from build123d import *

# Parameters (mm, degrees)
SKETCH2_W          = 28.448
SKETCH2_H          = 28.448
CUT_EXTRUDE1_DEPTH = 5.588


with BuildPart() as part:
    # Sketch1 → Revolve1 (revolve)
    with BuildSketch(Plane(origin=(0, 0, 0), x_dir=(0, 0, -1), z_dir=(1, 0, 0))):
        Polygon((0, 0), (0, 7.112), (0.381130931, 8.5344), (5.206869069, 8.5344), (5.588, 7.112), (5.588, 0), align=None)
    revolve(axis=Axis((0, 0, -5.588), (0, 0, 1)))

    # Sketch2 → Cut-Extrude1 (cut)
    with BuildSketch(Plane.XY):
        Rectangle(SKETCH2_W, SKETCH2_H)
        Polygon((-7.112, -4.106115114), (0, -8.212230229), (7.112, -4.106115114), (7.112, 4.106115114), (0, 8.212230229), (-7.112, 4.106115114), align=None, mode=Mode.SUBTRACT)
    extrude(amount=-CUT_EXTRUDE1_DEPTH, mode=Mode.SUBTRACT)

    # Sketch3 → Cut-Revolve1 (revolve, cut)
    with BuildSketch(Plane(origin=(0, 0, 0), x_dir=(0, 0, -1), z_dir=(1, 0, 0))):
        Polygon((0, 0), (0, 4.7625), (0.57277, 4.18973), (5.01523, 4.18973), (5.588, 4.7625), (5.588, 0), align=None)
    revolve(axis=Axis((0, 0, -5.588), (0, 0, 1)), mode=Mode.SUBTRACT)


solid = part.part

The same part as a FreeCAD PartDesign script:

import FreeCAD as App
import Part
import Sketcher
Q = App.Units.Quantity


def add_polygon(sketch, points):
    """Adds a closed chain of lines whose ends are joined by coincident constraints."""
    first, n = sketch.GeometryCount, len(points)
    for a, b in zip(points, points[1:] + points[:1]):
        sketch.addGeometry(Part.LineSegment(App.Vector(*a, 0), App.Vector(*b, 0)), False)
    for i in range(n):
        sketch.addConstraint(Sketcher.Constraint("Coincident", first + i, 2, first + (i + 1) % n, 1))

doc = App.newDocument("Part")
body = doc.addObject("PartDesign::Body", "Body")

sketch1 = body.newObject("Sketcher::SketchObject", "Sketch")
sketch1.AttachmentSupport = (doc.getObject("YZ_Plane"), [""])
sketch1.MapMode = "FlatFace"
add_polygon(sketch1, [(7.112, 0), (0, 0), (0, -5.588), (7.112, -5.588), (8.5344, -5.206869), (8.5344, -0.381131)])
sketch1.addConstraint(Sketcher.Constraint("Horizontal", 0))
sketch1.addConstraint(Sketcher.Constraint("Vertical", 1))
sketch1.addConstraint(Sketcher.Constraint("Horizontal", 2))
sketch1.addConstraint(Sketcher.Constraint("Vertical", 4))
sketch1.addConstraint(Sketcher.Constraint("Coincident", 0, 2, -1, 1))
sketch1.addConstraint(Sketcher.Constraint("Vertical", 2, 2, 5, 2))
sketch1.addConstraint(Sketcher.Constraint("Equal", 3, 5))
sketch1.addConstraint(Sketcher.Constraint("Angle", 3, Q("15 deg")))
sketch1.addConstraint(Sketcher.Constraint("DistanceX", 0, 2, 0, 1, Q("0.28 in")))
sketch1.addConstraint(Sketcher.Constraint("DistanceY", 1, 2, 1, 1, Q("0.22 in")))
sketch1.addConstraint(Sketcher.Constraint("DistanceX", -1, 1, 3, 2, Q("0.336 in")))
revolution = body.newObject("PartDesign::Revolution", "Revolution")
revolution.Profile = sketch1
revolution.ReferenceAxis = (sketch1, ["V_Axis"])
revolution.Angle = 360

sketch2 = body.newObject("Sketcher::SketchObject", "Sketch001")
sketch2.AttachmentSupport = (doc.getObject("XY_Plane"), [""])
sketch2.MapMode = "FlatFace"
add_polygon(sketch2, [(-14.224, 14.224), (-14.224, -14.224), (14.224, -14.224), (14.224, 14.224)])
add_polygon(sketch2, [(0, -8.21223), (-7.112, -4.106115), (-7.112, 4.106115), (0, 8.21223), (7.112, 4.106115), (7.112, -4.106115)])
sketch2.addConstraint(Sketcher.Constraint("Vertical", 0))
sketch2.addConstraint(Sketcher.Constraint("Horizontal", 1))
sketch2.addConstraint(Sketcher.Constraint("Vertical", 2))
sketch2.addConstraint(Sketcher.Constraint("Horizontal", 3))
sketch2.addConstraint(Sketcher.Constraint("Vertical", 5))
sketch2.addConstraint(Sketcher.Constraint("Vertical", 8))
sketch2.addConstraint(Sketcher.Constraint("Symmetric", 0, 2, 2, 2, -1, 1))
sketch2.addConstraint(Sketcher.Constraint("Symmetric", 4, 2, 7, 2, -1, 1))
sketch2.addConstraint(Sketcher.Constraint("Symmetric", 6, 2, 9, 2, -1, 1))
sketch2.addConstraint(Sketcher.Constraint("PointOnObject", 6, 2, -2))
sketch2.addConstraint(Sketcher.Constraint("Parallel", 6, 9))
sketch2.addConstraint(Sketcher.Constraint("Horizontal", 5, 2, 7, 2))
sketch2.addConstraint(Sketcher.Constraint("Equal", 3, 0))
sketch2.addConstraint(Sketcher.Constraint("Angle", 4, Q("150 deg")))
sketch2.addConstraint(Sketcher.Constraint("DistanceX", 1, 1, 1, 2, Q("1.12 in")))
sketch2.addConstraint(Sketcher.Constraint("DistanceX", 4, 2, -1, 1, Q("0.28 in")))
sketch2.addConstraint(Sketcher.Constraint("DistanceY", 5, 1, 5, 2, 8.21223))
pocket1 = body.newObject("PartDesign::Pocket", "Pocket")
pocket1.Profile = sketch2
pocket1.Length = Q("0.22 in")

sketch3 = body.newObject("Sketcher::SketchObject", "Sketch002")
sketch3.AttachmentSupport = (doc.getObject("YZ_Plane"), [""])
sketch3.MapMode = "FlatFace"
add_polygon(sketch3, [(4.7625, 0), (0, 0), (0, -5.588), (4.7625, -5.588), (4.18973, -5.01523), (4.18973, -0.57277)])
sketch3.addConstraint(Sketcher.Constraint("Horizontal", 0))
sketch3.addConstraint(Sketcher.Constraint("Vertical", 1))
sketch3.addConstraint(Sketcher.Constraint("Horizontal", 2))
sketch3.addConstraint(Sketcher.Constraint("Vertical", 4))
sketch3.addConstraint(Sketcher.Constraint("Coincident", 0, 2, -1, 1))
sketch3.addConstraint(Sketcher.Constraint("Perpendicular", 3, 5))
sketch3.addConstraint(Sketcher.Constraint("Vertical", 2, 2, 5, 2))
sketch3.addConstraint(Sketcher.Constraint("Equal", 3, 5))
sketch3.addConstraint(Sketcher.Constraint("DistanceY", 1, 2, 1, 1, Q("0.22 in")))
sketch3.addConstraint(Sketcher.Constraint("DistanceX", 0, 2, 0, 1, Q("0.1875 in")))
sketch3.addConstraint(Sketcher.Constraint("DistanceY", 4, 1, 4, 2, Q("0.1749 in")))
groove = body.newObject("PartDesign::Groove", "Groove")
groove.Profile = sketch3
groove.ReferenceAxis = (sketch3, ["V_Axis"])
groove.Angle = 360

doc.recompute()
